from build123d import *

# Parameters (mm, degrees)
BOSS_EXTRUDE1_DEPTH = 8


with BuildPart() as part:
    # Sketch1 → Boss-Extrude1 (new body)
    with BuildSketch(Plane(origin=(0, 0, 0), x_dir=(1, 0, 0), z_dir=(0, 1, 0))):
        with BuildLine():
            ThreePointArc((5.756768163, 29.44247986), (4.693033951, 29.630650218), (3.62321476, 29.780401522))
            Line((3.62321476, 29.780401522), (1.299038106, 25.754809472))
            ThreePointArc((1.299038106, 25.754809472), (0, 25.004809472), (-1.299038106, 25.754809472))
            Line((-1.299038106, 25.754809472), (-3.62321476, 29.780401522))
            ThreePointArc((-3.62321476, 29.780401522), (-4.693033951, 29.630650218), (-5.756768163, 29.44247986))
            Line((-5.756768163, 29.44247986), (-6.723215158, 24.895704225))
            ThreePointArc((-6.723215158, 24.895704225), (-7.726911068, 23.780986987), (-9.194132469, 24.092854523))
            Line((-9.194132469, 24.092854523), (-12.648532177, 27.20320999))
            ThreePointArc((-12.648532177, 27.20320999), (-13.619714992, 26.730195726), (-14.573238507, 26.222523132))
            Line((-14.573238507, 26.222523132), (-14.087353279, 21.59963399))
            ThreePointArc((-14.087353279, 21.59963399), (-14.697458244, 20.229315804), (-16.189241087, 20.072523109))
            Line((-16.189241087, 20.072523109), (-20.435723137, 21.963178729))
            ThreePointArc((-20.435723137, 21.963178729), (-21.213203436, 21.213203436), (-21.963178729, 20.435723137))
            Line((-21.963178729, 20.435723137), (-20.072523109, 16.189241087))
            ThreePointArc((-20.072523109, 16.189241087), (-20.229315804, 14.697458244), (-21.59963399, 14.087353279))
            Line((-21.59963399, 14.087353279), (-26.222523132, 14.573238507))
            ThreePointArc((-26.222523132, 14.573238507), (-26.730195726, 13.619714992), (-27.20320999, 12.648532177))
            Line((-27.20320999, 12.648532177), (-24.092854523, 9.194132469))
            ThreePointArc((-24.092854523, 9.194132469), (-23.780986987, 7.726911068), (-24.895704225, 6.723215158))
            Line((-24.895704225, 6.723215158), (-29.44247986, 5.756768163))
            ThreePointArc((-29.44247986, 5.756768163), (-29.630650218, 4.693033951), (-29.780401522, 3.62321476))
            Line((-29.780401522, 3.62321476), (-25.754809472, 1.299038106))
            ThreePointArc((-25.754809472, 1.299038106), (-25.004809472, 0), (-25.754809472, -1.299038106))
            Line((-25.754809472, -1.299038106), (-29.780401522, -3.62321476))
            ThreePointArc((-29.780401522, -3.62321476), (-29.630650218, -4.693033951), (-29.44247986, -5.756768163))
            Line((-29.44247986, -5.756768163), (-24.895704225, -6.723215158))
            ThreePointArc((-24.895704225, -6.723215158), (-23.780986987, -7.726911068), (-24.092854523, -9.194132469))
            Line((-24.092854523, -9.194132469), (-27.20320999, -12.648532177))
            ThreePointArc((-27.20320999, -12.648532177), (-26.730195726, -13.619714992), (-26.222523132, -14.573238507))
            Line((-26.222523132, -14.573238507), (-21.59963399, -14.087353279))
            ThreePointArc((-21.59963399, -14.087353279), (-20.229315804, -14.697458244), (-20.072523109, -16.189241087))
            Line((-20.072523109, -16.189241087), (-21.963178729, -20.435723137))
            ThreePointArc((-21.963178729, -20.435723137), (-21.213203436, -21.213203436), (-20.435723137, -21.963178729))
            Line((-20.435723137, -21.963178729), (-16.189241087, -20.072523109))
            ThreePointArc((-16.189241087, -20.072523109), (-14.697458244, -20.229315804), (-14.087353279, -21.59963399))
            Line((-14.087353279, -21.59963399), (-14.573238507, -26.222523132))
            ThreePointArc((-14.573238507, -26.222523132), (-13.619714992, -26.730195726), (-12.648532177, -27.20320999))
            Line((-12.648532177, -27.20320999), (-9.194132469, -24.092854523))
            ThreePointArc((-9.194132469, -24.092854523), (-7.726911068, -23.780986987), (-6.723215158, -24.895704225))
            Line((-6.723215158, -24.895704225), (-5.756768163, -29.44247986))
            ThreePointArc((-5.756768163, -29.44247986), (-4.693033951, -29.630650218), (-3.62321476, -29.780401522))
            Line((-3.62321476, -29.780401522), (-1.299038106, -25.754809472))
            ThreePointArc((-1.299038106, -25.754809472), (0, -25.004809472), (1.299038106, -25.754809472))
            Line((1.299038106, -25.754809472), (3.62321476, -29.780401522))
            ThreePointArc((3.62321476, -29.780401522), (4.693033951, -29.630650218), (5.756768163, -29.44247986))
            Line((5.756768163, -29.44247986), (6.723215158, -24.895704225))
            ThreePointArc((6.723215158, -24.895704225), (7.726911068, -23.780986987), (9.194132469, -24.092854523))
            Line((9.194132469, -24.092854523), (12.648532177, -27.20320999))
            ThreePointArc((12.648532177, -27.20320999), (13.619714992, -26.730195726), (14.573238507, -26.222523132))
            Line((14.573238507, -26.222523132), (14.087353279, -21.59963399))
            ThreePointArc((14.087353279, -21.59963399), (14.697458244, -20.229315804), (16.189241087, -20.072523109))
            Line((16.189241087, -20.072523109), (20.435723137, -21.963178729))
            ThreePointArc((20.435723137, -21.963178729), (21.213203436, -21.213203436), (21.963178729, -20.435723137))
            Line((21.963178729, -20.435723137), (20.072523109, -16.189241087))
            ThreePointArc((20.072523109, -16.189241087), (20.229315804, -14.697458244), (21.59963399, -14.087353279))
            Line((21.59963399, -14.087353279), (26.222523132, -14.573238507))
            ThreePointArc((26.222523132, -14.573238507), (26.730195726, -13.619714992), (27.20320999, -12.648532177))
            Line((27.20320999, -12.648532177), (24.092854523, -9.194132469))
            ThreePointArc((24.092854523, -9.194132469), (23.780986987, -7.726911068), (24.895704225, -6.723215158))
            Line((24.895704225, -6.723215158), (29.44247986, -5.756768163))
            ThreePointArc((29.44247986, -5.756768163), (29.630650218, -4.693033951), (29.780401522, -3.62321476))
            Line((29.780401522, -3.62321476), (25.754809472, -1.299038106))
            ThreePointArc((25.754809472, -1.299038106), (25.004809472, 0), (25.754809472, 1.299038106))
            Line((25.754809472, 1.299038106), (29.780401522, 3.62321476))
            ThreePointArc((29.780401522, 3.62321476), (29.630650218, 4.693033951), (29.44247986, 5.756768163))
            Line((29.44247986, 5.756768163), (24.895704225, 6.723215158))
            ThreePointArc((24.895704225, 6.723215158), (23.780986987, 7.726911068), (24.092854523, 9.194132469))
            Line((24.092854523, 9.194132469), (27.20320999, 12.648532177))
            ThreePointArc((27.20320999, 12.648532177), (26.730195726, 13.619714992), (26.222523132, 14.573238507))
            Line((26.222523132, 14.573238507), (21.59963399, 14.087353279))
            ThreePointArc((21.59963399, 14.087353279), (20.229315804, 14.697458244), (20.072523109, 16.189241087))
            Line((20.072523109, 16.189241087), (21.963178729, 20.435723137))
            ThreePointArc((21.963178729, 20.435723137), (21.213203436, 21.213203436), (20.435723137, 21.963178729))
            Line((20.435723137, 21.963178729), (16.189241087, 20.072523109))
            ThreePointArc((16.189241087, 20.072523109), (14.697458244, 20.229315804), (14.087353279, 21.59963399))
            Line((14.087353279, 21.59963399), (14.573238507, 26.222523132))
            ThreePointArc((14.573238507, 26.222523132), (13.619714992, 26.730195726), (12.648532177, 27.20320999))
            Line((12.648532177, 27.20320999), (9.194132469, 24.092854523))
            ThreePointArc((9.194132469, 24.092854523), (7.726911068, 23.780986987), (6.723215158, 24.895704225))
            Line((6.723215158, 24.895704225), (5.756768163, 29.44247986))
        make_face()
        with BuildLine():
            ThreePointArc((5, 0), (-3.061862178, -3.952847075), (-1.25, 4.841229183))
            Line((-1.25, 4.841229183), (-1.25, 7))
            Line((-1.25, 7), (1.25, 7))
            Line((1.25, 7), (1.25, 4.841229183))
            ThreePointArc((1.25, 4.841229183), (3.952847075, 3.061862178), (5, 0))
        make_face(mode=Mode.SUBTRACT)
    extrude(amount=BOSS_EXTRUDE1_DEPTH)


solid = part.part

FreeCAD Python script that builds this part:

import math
import FreeCAD as App
import Part
import Sketcher
Q = App.Units.Quantity

doc = App.newDocument("Part")
body = doc.addObject("PartDesign::Body", "Body")

# Sketch on XZ plane
sketch1 = doc.addObject("Sketcher::SketchObject", "Sketch")
body.addObject(sketch1)
sketch1.AttachmentSupport = (doc.XZ_Plane, [""])
sketch1.MapMode = "FlatFace"
sketch1.addGeometry(Part.ArcOfCircle(Part.Circle(App.Vector(0, 0, 0), App.Vector(0, 0, 1), 30), math.radians(-83.063236), math.radians(-78.936764)), False)
sketch1.addGeometry(Part.LineSegment(App.Vector(3.623215, -29.780402, 0), App.Vector(1.299038, -25.754809, 0)), False)
sketch1.addGeometry(Part.ArcOfCircle(Part.Circle(App.Vector(0, -26.504809, 0), App.Vector(0, 0, 1), 1.5), math.radians(30), math.radians(150)), False)
sketch1.addGeometry(Part.LineSegment(App.Vector(-1.299038, -25.754809, 0), App.Vector(-3.623215, -29.780402, 0)), False)
sketch1.addGeometry(Part.ArcOfCircle(Part.Circle(App.Vector(0, 0, 0), App.Vector(0, 0, 1), 30), math.radians(-101.063236), math.radians(-96.936764)), False)
sketch1.addGeometry(Part.LineSegment(App.Vector(-5.756768, -29.44248, 0), App.Vector(-6.723215, -24.895704, 0)), False)
sketch1.addGeometry(Part.ArcOfCircle(Part.Circle(App.Vector(-8.190437, -25.207572, 0), App.Vector(0, 0, 1), 1.5), math.radians(12), math.radians(132)), False)
sketch1.addGeometry(Part.LineSegment(App.Vector(-9.194132, -24.092855, 0), App.Vector(-12.648532, -27.20321, 0)), False)
sketch1.addGeometry(Part.ArcOfCircle(Part.Circle(App.Vector(0, -0.000001, 0), App.Vector(0, 0, 1), 29.999999), math.radians(-119.063236), math.radians(-114.936764)), False)
sketch1.addGeometry(Part.LineSegment(App.Vector(-14.573239, -26.222523, 0), App.Vector(-14.087353, -21.599634, 0)), False)
sketch1.addGeometry(Part.ArcOfCircle(Part.Circle(App.Vector(-15.579136, -21.442841, 0), App.Vector(0, 0, 1), 1.5), math.radians(-6), math.radians(114)), False)
sketch1.addGeometry(Part.LineSegment(App.Vector(-16.189241, -20.072523, 0), App.Vector(-20.435723, -21.963179, 0)), False)
sketch1.addGeometry(Part.ArcOfCircle(Part.Circle(App.Vector(0, 0, 0), App.Vector(0, 0, 1), 29.999999), math.radians(-137.063236), math.radians(-132.936764)), False)
sketch1.addGeometry(Part.LineSegment(App.Vector(-21.963179, -20.435723, 0), App.Vector(-20.072523, -16.189241, 0)), False)
sketch1.addGeometry(Part.ArcOfCircle(Part.Circle(App.Vector(-21.442841, -15.579136, 0), App.Vector(0, 0, 1), 1.5), math.radians(-24), math.radians(96)), False)
sketch1.addGeometry(Part.LineSegment(App.Vector(-21.599634, -14.087353, 0), App.Vector(-26.222523, -14.573239, 0)), False)
sketch1.addGeometry(Part.ArcOfCircle(Part.Circle(App.Vector(-0.000001, 0, 0), App.Vector(0, 0, 1), 29.999999), math.radians(-155.063236), math.radians(-150.936764)), False)
sketch1.addGeometry(Part.LineSegment(App.Vector(-27.20321, -12.648532, 0), App.Vector(-24.092855, -9.194132, 0)), False)
sketch1.addGeometry(Part.ArcOfCircle(Part.Circle(App.Vector(-25.207572, -8.190437, 0), App.Vector(0, 0, 1), 1.5), math.radians(-42), math.radians(78)), False)
sketch1.addGeometry(Part.LineSegment(App.Vector(-24.895704, -6.723215, 0), App.Vector(-29.44248, -5.756768, 0)), False)
sketch1.addGeometry(Part.ArcOfCircle(Part.Circle(App.Vector(0, 0, 0), App.Vector(0, 0, 1), 30), math.radians(-173.063236), math.radians(-168.936764)), False)
sketch1.addGeometry(Part.LineSegment(App.Vector(-29.780402, -3.623215, 0), App.Vector(-25.754809, -1.299038, 0)), False)
sketch1.addGeometry(Part.ArcOfCircle(Part.Circle(App.Vector(-26.504809, 0, 0), App.Vector(0, 0, 1), 1.5), math.radians(-60), math.radians(60)), False)
sketch1.addGeometry(Part.LineSegment(App.Vector(-25.754809, 1.299038, 0), App.Vector(-29.780402, 3.623215, 0)), False)
sketch1.addGeometry(Part.ArcOfCircle(Part.Circle(App.Vector(0, 0, 0), App.Vector(0, 0, 1), 30), math.radians(168.936764), math.radians(173.063236)), False)
sketch1.addGeometry(Part.LineSegment(App.Vector(-29.44248, 5.756768, 0), App.Vector(-24.895704, 6.723215, 0)), False)
sketch1.addGeometry(Part.ArcOfCircle(Part.Circle(App.Vector(-25.207572, 8.190437, 0), App.Vector(0, 0, 1), 1.5), math.radians(-78), math.radians(42)), False)
sketch1.addGeometry(Part.LineSegment(App.Vector(-24.092855, 9.194132, 0), App.Vector(-27.20321, 12.648532, 0)), False)
sketch1.addGeometry(Part.ArcOfCircle(Part.Circle(App.Vector(-0.000001, 0, 0), App.Vector(0, 0, 1), 29.999999), math.radians(150.936764), math.radians(155.063236)), False)
sketch1.addGeometry(Part.LineSegment(App.Vector(-26.222523, 14.573239, 0), App.Vector(-21.599634, 14.087353, 0)), False)
sketch1.addGeometry(Part.ArcOfCircle(Part.Circle(App.Vector(-21.442841, 15.579136, 0), App.Vector(0, 0, 1), 1.5), math.radians(-96), math.radians(24)), False)
sketch1.addGeometry(Part.LineSegment(App.Vector(-20.072523, 16.189241, 0), App.Vector(-21.963179, 20.435723, 0)), False)
sketch1.addGeometry(Part.ArcOfCircle(Part.Circle(App.Vector(0, 0, 0), App.Vector(0, 0, 1), 29.999999), math.radians(132.936764), math.radians(137.063236)), False)
sketch1.addGeometry(Part.LineSegment(App.Vector(-20.435723, 21.963179, 0), App.Vector(-16.189241, 20.072523, 0)), False)
sketch1.addGeometry(Part.ArcOfCircle(Part.Circle(App.Vector(-15.579136, 21.442841, 0), App.Vector(0, 0, 1), 1.5), math.radians(-114), math.radians(6)), False)
sketch1.addGeometry(Part.LineSegment(App.Vector(-14.087353, 21.599634, 0), App.Vector(-14.573239, 26.222523, 0)), False)
sketch1.addGeometry(Part.ArcOfCircle(Part.Circle(App.Vector(0, 0.000001, 0), App.Vector(0, 0, 1), 29.999999), math.radians(114.936764), math.radians(119.063236)), False)
sketch1.addGeometry(Part.LineSegment(App.Vector(-12.648532, 27.20321, 0), App.Vector(-9.194132, 24.092855, 0)), False)
sketch1.addGeometry(Part.ArcOfCircle(Part.Circle(App.Vector(-8.190437, 25.207572, 0), App.Vector(0, 0, 1), 1.5), math.radians(-132), math.radians(-12)), False)
sketch1.addGeometry(Part.LineSegment(App.Vector(-6.723215, 24.895704, 0), App.Vector(-5.756768, 29.44248, 0)), False)
sketch1.addGeometry(Part.ArcOfCircle(Part.Circle(App.Vector(0, 0, 0), App.Vector(0, 0, 1), 30), math.radians(96.936764), math.radians(101.063236)), False)
sketch1.addGeometry(Part.LineSegment(App.Vector(-3.623215, 29.780402, 0), App.Vector(-1.299038, 25.754809, 0)), False)
sketch1.addGeometry(Part.ArcOfCircle(Part.Circle(App.Vector(0, 26.504809, 0), App.Vector(0, 0, 1), 1.5), math.radians(-150), math.radians(-30)), False)
sketch1.addGeometry(Part.LineSegment(App.Vector(1.299038, 25.754809, 0), App.Vector(3.623215, 29.780402, 0)), False)
sketch1.addGeometry(Part.ArcOfCircle(Part.Circle(App.Vector(0, 0, 0), App.Vector(0, 0, 1), 30), math.radians(78.936764), math.radians(83.063236)), False)
sketch1.addGeometry(Part.LineSegment(App.Vector(5.756768, 29.44248, 0), App.Vector(6.723215, 24.895704, 0)), False)
sketch1.addGeometry(Part.ArcOfCircle(Part.Circle(App.Vector(8.190437, 25.207572, 0), App.Vector(0, 0, 1), 1.5), math.radians(-168), math.radians(-48)), False)
sketch1.addGeometry(Part.LineSegment(App.Vector(9.194132, 24.092855, 0), App.Vector(12.648532, 27.20321, 0)), False)
sketch1.addGeometry(Part.ArcOfCircle(Part.Circle(App.Vector(0, 0.000001, 0), App.Vector(0, 0, 1), 29.999999), math.radians(60.936764), math.radians(65.063236)), False)
sketch1.addGeometry(Part.LineSegment(App.Vector(14.573239, 26.222523, 0), App.Vector(14.087353, 21.599634, 0)), False)
sketch1.addGeometry(Part.ArcOfCircle(Part.Circle(App.Vector(15.579136, 21.442841, 0), App.Vector(0, 0, 1), 1.5), math.radians(174), math.radians(294)), False)
sketch1.addGeometry(Part.LineSegment(App.Vector(16.189241, 20.072523, 0), App.Vector(20.435723, 21.963179, 0)), False)
sketch1.addGeometry(Part.ArcOfCircle(Part.Circle(App.Vector(0, 0, 0), App.Vector(0, 0, 1), 29.999999), math.radians(42.936764), math.radians(47.063236)), False)
sketch1.addGeometry(Part.LineSegment(App.Vector(21.963179, 20.435723, 0), App.Vector(20.072523, 16.189241, 0)), False)
sketch1.addGeometry(Part.ArcOfCircle(Part.Circle(App.Vector(21.442841, 15.579136, 0), App.Vector(0, 0, 1), 1.5), math.radians(156), math.radians(276)), False)
sketch1.addGeometry(Part.LineSegment(App.Vector(21.599634, 14.087353, 0), App.Vector(26.222523, 14.573239, 0)), False)
sketch1.addGeometry(Part.ArcOfCircle(Part.Circle(App.Vector(0.000001, 0, 0), App.Vector(0, 0, 1), 29.999999), math.radians(24.936764), math.radians(29.063236)), False)
sketch1.addGeometry(Part.LineSegment(App.Vector(27.20321, 12.648532, 0), App.Vector(24.092855, 9.194132, 0)), False)
sketch1.addGeometry(Part.ArcOfCircle(Part.Circle(App.Vector(25.207572, 8.190437, 0), App.Vector(0, 0, 1), 1.5), math.radians(138), math.radians(258)), False)
sketch1.addGeometry(Part.LineSegment(App.Vector(24.895704, 6.723215, 0), App.Vector(29.44248, 5.756768, 0)), False)
sketch1.addGeometry(Part.ArcOfCircle(Part.Circle(App.Vector(0, 0, 0), App.Vector(0, 0, 1), 30), math.radians(6.936764), math.radians(11.063236)), False)
sketch1.addGeometry(Part.LineSegment(App.Vector(29.780402, 3.623215, 0), App.Vector(25.754809, 1.299038, 0)), False)
sketch1.addGeometry(Part.ArcOfCircle(Part.Circle(App.Vector(26.504809, 0, 0), App.Vector(0, 0, 1), 1.5), math.radians(120), math.radians(240)), False)
sketch1.addGeometry(Part.LineSegment(App.Vector(25.754809, -1.299038, 0), App.Vector(29.780402, -3.623215, 0)), False)
sketch1.addGeometry(Part.ArcOfCircle(Part.Circle(App.Vector(0, 0, 0), App.Vector(0, 0, 1), 30), math.radians(-11.063236), math.radians(-6.936764)), False)
sketch1.addGeometry(Part.LineSegment(App.Vector(29.44248, -5.756768, 0), App.Vector(24.895704, -6.723215, 0)), False)
sketch1.addGeometry(Part.ArcOfCircle(Part.Circle(App.Vector(25.207572, -8.190437, 0), App.Vector(0, 0, 1), 1.5), math.radians(102), math.radians(222)), False)
sketch1.addGeometry(Part.LineSegment(App.Vector(24.092855, -9.194132, 0), App.Vector(27.20321, -12.648532, 0)), False)
sketch1.addGeometry(Part.ArcOfCircle(Part.Circle(App.Vector(0.000001, 0, 0), App.Vector(0, 0, 1), 29.999999), math.radians(-29.063236), math.radians(-24.936764)), False)
sketch1.addGeometry(Part.LineSegment(App.Vector(26.222523, -14.573239, 0), App.Vector(21.599634, -14.087353, 0)), False)
sketch1.addGeometry(Part.ArcOfCircle(Part.Circle(App.Vector(21.442841, -15.579136, 0), App.Vector(0, 0, 1), 1.5), math.radians(84), math.radians(204)), False)
sketch1.addGeometry(Part.LineSegment(App.Vector(20.072523, -16.189241, 0), App.Vector(21.963179, -20.435723, 0)), False)
sketch1.addGeometry(Part.ArcOfCircle(Part.Circle(App.Vector(0, 0, 0), App.Vector(0, 0, 1), 29.999999), math.radians(-47.063236), math.radians(-42.936764)), False)
sketch1.addGeometry(Part.LineSegment(App.Vector(20.435723, -21.963179, 0), App.Vector(16.189241, -20.072523, 0)), False)
sketch1.addGeometry(Part.ArcOfCircle(Part.Circle(App.Vector(15.579136, -21.442841, 0), App.Vector(0, 0, 1), 1.5), math.radians(66), math.radians(186)), False)
sketch1.addGeometry(Part.LineSegment(App.Vector(14.087353, -21.599634, 0), App.Vector(14.573239, -26.222523, 0)), False)
sketch1.addGeometry(Part.ArcOfCircle(Part.Circle(App.Vector(0, -0.000001, 0), App.Vector(0, 0, 1), 29.999999), math.radians(-65.063236), math.radians(-60.936764)), False)
sketch1.addGeometry(Part.LineSegment(App.Vector(12.648532, -27.20321, 0), App.Vector(9.194132, -24.092855, 0)), False)
sketch1.addGeometry(Part.ArcOfCircle(Part.Circle(App.Vector(8.190437, -25.207572, 0), App.Vector(0, 0, 1), 1.5), math.radians(48), math.radians(168)), False)
sketch1.addGeometry(Part.LineSegment(App.Vector(6.723215, -24.895704, 0), App.Vector(5.756768, -29.44248, 0)), False)
sketch1.addGeometry(Part.ArcOfCircle(Part.Circle(App.Vector(0, 0, 0), App.Vector(0, 0, 1), 5), math.radians(-75.522488), math.radians(0)), False)
sketch1.addGeometry(Part.ArcOfCircle(Part.Circle(App.Vector(0, 0, 0), App.Vector(0, 0, 1), 5), math.radians(0), math.radians(255.522488)), False)
sketch1.addGeometry(Part.LineSegment(App.Vector(-1.25, -4.841229, 0), App.Vector(-1.25, -7, 0)), False)
sketch1.addGeometry(Part.LineSegment(App.Vector(-1.25, -7, 0), App.Vector(1.25, -7, 0)), False)
sketch1.addGeometry(Part.LineSegment(App.Vector(1.25, -7, 0), App.Vector(1.25, -4.841229, 0)), False)
sketch1.addConstraint(Sketcher.Constraint("Coincident", 0, 1, 1, 1))
sketch1.addConstraint(Sketcher.Constraint("Tangent", 1, 2, 2, 1))
sketch1.addConstraint(Sketcher.Constraint("Tangent", 2, 2, 3, 1))
sketch1.addConstraint(Sketcher.Constraint("Coincident", 3, 2, 4, 2))
sketch1.addConstraint(Sketcher.Constraint("Coincident", 4, 1, 5, 1))
sketch1.addConstraint(Sketcher.Constraint("Tangent", 5, 2, 6, 1))
sketch1.addConstraint(Sketcher.Constraint("Tangent", 6, 2, 7, 1))
sketch1.addConstraint(Sketcher.Constraint("Coincident", 7, 2, 8, 2))
sketch1.addConstraint(Sketcher.Constraint("Coincident", 8, 1, 9, 1))
sketch1.addConstraint(Sketcher.Constraint("Tangent", 9, 2, 10, 1))
sketch1.addConstraint(Sketcher.Constraint("Tangent", 10, 2, 11, 1))
sketch1.addConstraint(Sketcher.Constraint("Coincident", 11, 2, 12, 2))
sketch1.addConstraint(Sketcher.Constraint("Coincident", 12, 1, 13, 1))
sketch1.addConstraint(Sketcher.Constraint("Tangent", 13, 2, 14, 1))
sketch1.addConstraint(Sketcher.Constraint("Tangent", 14, 2, 15, 1))
sketch1.addConstraint(Sketcher.Constraint("Coincident", 15, 2, 16, 2))
sketch1.addConstraint(Sketcher.Constraint("Coincident", 16, 1, 17, 1))
sketch1.addConstraint(Sketcher.Constraint("Tangent", 17, 2, 18, 1))
sketch1.addConstraint(Sketcher.Constraint("Tangent", 18, 2, 19, 1))
sketch1.addConstraint(Sketcher.Constraint("Coincident", 19, 2, 20, 2))
sketch1.addConstraint(Sketcher.Constraint("Coincident", 20, 1, 21, 1))
sketch1.addConstraint(Sketcher.Constraint("Tangent", 21, 2, 22, 1))
sketch1.addConstraint(Sketcher.Constraint("Tangent", 22, 2, 23, 1))
sketch1.addConstraint(Sketcher.Constraint("Coincident", 23, 2, 24, 2))
sketch1.addConstraint(Sketcher.Constraint("Coincident", 24, 1, 25, 1))
sketch1.addConstraint(Sketcher.Constraint("Tangent", 25, 2, 26, 1))
sketch1.addConstraint(Sketcher.Constraint("Tangent", 26, 2, 27, 1))
sketch1.addConstraint(Sketcher.Constraint("Coincident", 27, 2, 28, 2))
sketch1.addConstraint(Sketcher.Constraint("Coincident", 28, 1, 29, 1))
sketch1.addConstraint(Sketcher.Constraint("Tangent", 29, 2, 30, 1))
sketch1.addConstraint(Sketcher.Constraint("Tangent", 30, 2, 31, 1))
sketch1.addConstraint(Sketcher.Constraint("Coincident", 31, 2, 32, 2))
sketch1.addConstraint(Sketcher.Constraint("Coincident", 32, 1, 33, 1))
sketch1.addConstraint(Sketcher.Constraint("Tangent", 33, 2, 34, 1))
sketch1.addConstraint(Sketcher.Constraint("Tangent", 34, 2, 35, 1))
sketch1.addConstraint(Sketcher.Constraint("Coincident", 35, 2, 36, 2))
sketch1.addConstraint(Sketcher.Constraint("Coincident", 36, 1, 37, 1))
sketch1.addConstraint(Sketcher.Constraint("Tangent", 37, 2, 38, 1))
sketch1.addConstraint(Sketcher.Constraint("Tangent", 38, 2, 39, 1))
sketch1.addConstraint(Sketcher.Constraint("Coincident", 39, 2, 40, 2))
sketch1.addConstraint(Sketcher.Constraint("Coincident", 40, 1, 41, 1))
sketch1.addConstraint(Sketcher.Constraint("Tangent", 41, 2, 42, 1))
sketch1.addConstraint(Sketcher.Constraint("Tangent", 42, 2, 43, 1))
sketch1.addConstraint(Sketcher.Constraint("Coincident", 43, 2, 44, 2))
sketch1.addConstraint(Sketcher.Constraint("Coincident", 44, 1, 45, 1))
sketch1.addConstraint(Sketcher.Constraint("Tangent", 45, 2, 46, 1))
sketch1.addConstraint(Sketcher.Constraint("Tangent", 46, 2, 47, 1))
sketch1.addConstraint(Sketcher.Constraint("Coincident", 47, 2, 48, 2))
sketch1.addConstraint(Sketcher.Constraint("Coincident", 48, 1, 49, 1))
sketch1.addConstraint(Sketcher.Constraint("Tangent", 49, 2, 50, 1))
sketch1.addConstraint(Sketcher.Constraint("Tangent", 50, 2, 51, 1))
sketch1.addConstraint(Sketcher.Constraint("Coincident", 51, 2, 52, 2))
sketch1.addConstraint(Sketcher.Constraint("Coincident", 52, 1, 53, 1))
sketch1.addConstraint(Sketcher.Constraint("Tangent", 53, 2, 54, 1))
sketch1.addConstraint(Sketcher.Constraint("Tangent", 54, 2, 55, 1))
sketch1.addConstraint(Sketcher.Constraint("Coincident", 55, 2, 56, 2))
sketch1.addConstraint(Sketcher.Constraint("Coincident", 56, 1, 57, 1))
sketch1.addConstraint(Sketcher.Constraint("Tangent", 57, 2, 58, 1))
sketch1.addConstraint(Sketcher.Constraint("Tangent", 58, 2, 59, 1))
sketch1.addConstraint(Sketcher.Constraint("Coincident", 59, 2, 60, 2))
sketch1.addConstraint(Sketcher.Constraint("Coincident", 60, 1, 61, 1))
sketch1.addConstraint(Sketcher.Constraint("Tangent", 61, 2, 62, 1))
sketch1.addConstraint(Sketcher.Constraint("Tangent", 62, 2, 63, 1))
sketch1.addConstraint(Sketcher.Constraint("Coincident", 63, 2, 64, 2))
sketch1.addConstraint(Sketcher.Constraint("Coincident", 64, 1, 65, 1))
sketch1.addConstraint(Sketcher.Constraint("Tangent", 65, 2, 66, 1))
sketch1.addConstraint(Sketcher.Constraint("Tangent", 66, 2, 67, 1))
sketch1.addConstraint(Sketcher.Constraint("Coincident", 67, 2, 68, 2))
sketch1.addConstraint(Sketcher.Constraint("Coincident", 68, 1, 69, 1))
sketch1.addConstraint(Sketcher.Constraint("Tangent", 69, 2, 70, 1))
sketch1.addConstraint(Sketcher.Constraint("Tangent", 70, 2, 71, 1))
sketch1.addConstraint(Sketcher.Constraint("Coincident", 71, 2, 72, 2))
sketch1.addConstraint(Sketcher.Constraint("Coincident", 72, 1, 73, 1))
sketch1.addConstraint(Sketcher.Constraint("Tangent", 73, 2, 74, 1))
sketch1.addConstraint(Sketcher.Constraint("Tangent", 74, 2, 75, 1))
sketch1.addConstraint(Sketcher.Constraint("Coincident", 75, 2, 76, 2))
sketch1.addConstraint(Sketcher.Constraint("Coincident", 76, 1, 77, 1))
sketch1.addConstraint(Sketcher.Constraint("Tangent", 77, 2, 78, 1))
sketch1.addConstraint(Sketcher.Constraint("Tangent", 78, 2, 79, 1))
sketch1.addConstraint(Sketcher.Constraint("Coincident", 79, 2, 0, 2))
sketch1.addConstraint(Sketcher.Constraint("Tangent", 80, 2, 81, 1))
sketch1.addConstraint(Sketcher.Constraint("Coincident", 81, 2, 82, 1))
sketch1.addConstraint(Sketcher.Constraint("Coincident", 82, 2, 83, 1))
sketch1.addConstraint(Sketcher.Constraint("Coincident", 83, 2, 84, 1))
sketch1.addConstraint(Sketcher.Constraint("Coincident", 84, 2, 80, 1))
sketch1.addConstraint(Sketcher.Constraint("Vertical", 82))
sketch1.addConstraint(Sketcher.Constraint("Horizontal", 83))
sketch1.addConstraint(Sketcher.Constraint("Vertical", 84))
sketch1.addConstraint(Sketcher.Constraint("Coincident", 0, 3, -1, 1))
sketch1.addConstraint(Sketcher.Constraint("Coincident", 4, 3, -1, 1))
sketch1.addConstraint(Sketcher.Constraint("Coincident", 8, 3, -1, 1))
sketch1.addConstraint(Sketcher.Constraint("Coincident", 12, 3, -1, 1))
sketch1.addConstraint(Sketcher.Constraint("Coincident", 16, 3, -1, 1))
sketch1.addConstraint(Sketcher.Constraint("Coincident", 20, 3, -1, 1))
sketch1.addConstraint(Sketcher.Constraint("Coincident", 24, 3, -1, 1))
sketch1.addConstraint(Sketcher.Constraint("Coincident", 28, 3, -1, 1))
sketch1.addConstraint(Sketcher.Constraint("Coincident", 32, 3, -1, 1))
sketch1.addConstraint(Sketcher.Constraint("Coincident", 36, 3, -1, 1))
sketch1.addConstraint(Sketcher.Constraint("Coincident", 40, 3, -1, 1))
sketch1.addConstraint(Sketcher.Constraint("Coincident", 44, 3, -1, 1))
sketch1.addConstraint(Sketcher.Constraint("Coincident", 48, 3, -1, 1))
sketch1.addConstraint(Sketcher.Constraint("Coincident", 52, 3, -1, 1))
sketch1.addConstraint(Sketcher.Constraint("Coincident", 56, 3, -1, 1))
sketch1.addConstraint(Sketcher.Constraint("Coincident", 60, 3, -1, 1))
sketch1.addConstraint(Sketcher.Constraint("Coincident", 64, 3, -1, 1))
sketch1.addConstraint(Sketcher.Constraint("Coincident", 68, 3, -1, 1))
sketch1.addConstraint(Sketcher.Constraint("Coincident", 72, 3, -1, 1))
sketch1.addConstraint(Sketcher.Constraint("Coincident", 76, 3, -1, 1))
sketch1.addConstraint(Sketcher.Constraint("Coincident", 80, 3, -1, 1))
sketch1.addConstraint(Sketcher.Constraint("Equal", 0, 4))
sketch1.addConstraint(Sketcher.Constraint("Equal", 2, 6))
sketch1.addConstraint(Sketcher.Constraint("Equal", 4, 8))
sketch1.addConstraint(Sketcher.Constraint("Equal", 6, 10))
sketch1.addConstraint(Sketcher.Constraint("Equal", 8, 12))
sketch1.addConstraint(Sketcher.Constraint("Equal", 10, 14))
sketch1.addConstraint(Sketcher.Constraint("Equal", 12, 16))
sketch1.addConstraint(Sketcher.Constraint("Equal", 14, 18))
sketch1.addConstraint(Sketcher.Constraint("Equal", 16, 20))
sketch1.addConstraint(Sketcher.Constraint("Equal", 18, 22))
sketch1.addConstraint(Sketcher.Constraint("Equal", 20, 24))
sketch1.addConstraint(Sketcher.Constraint("Equal", 22, 26))
sketch1.addConstraint(Sketcher.Constraint("Equal", 24, 28))
sketch1.addConstraint(Sketcher.Constraint("Equal", 26, 30))
sketch1.addConstraint(Sketcher.Constraint("Equal", 28, 32))
sketch1.addConstraint(Sketcher.Constraint("Equal", 30, 34))
sketch1.addConstraint(Sketcher.Constraint("Equal", 32, 36))
sketch1.addConstraint(Sketcher.Constraint("Equal", 34, 38))
sketch1.addConstraint(Sketcher.Constraint("Equal", 36, 40))
sketch1.addConstraint(Sketcher.Constraint("Equal", 38, 42))
sketch1.addConstraint(Sketcher.Constraint("Equal", 40, 44))
sketch1.addConstraint(Sketcher.Constraint("Equal", 42, 46))
sketch1.addConstraint(Sketcher.Constraint("Equal", 44, 48))
sketch1.addConstraint(Sketcher.Constraint("Equal", 46, 50))
sketch1.addConstraint(Sketcher.Constraint("Equal", 48, 52))
sketch1.addConstraint(Sketcher.Constraint("Equal", 50, 54))
sketch1.addConstraint(Sketcher.Constraint("Equal", 52, 56))
sketch1.addConstraint(Sketcher.Constraint("Equal", 54, 58))
sketch1.addConstraint(Sketcher.Constraint("Equal", 56, 60))
sketch1.addConstraint(Sketcher.Constraint("Equal", 58, 62))
sketch1.addConstraint(Sketcher.Constraint("Equal", 60, 64))
sketch1.addConstraint(Sketcher.Constraint("Equal", 62, 66))
sketch1.addConstraint(Sketcher.Constraint("Equal", 64, 68))
sketch1.addConstraint(Sketcher.Constraint("Equal", 66, 70))
sketch1.addConstraint(Sketcher.Constraint("Equal", 68, 72))
sketch1.addConstraint(Sketcher.Constraint("Equal", 70, 74))
sketch1.addConstraint(Sketcher.Constraint("Equal", 72, 76))
sketch1.addConstraint(Sketcher.Constraint("Equal", 74, 78))
sketch1.addConstraint(Sketcher.Constraint("Equal", 80, 81))
sketch1.addConstraint(Sketcher.Constraint("Symmetric", 2, 3, 42, 3, -1, 1))
sketch1.addConstraint(Sketcher.Constraint("Symmetric", 6, 3, 46, 3, -1, 1))
sketch1.addConstraint(Sketcher.Constraint("Symmetric", 10, 3, 50, 3, -1, 1))
sketch1.addConstraint(Sketcher.Constraint("Symmetric", 14, 3, 54, 3, -1, 1))
sketch1.addConstraint(Sketcher.Constraint("Symmetric", 18, 3, 58, 3, -1, 1))
sketch1.addConstraint(Sketcher.Constraint("Symmetric", 22, 3, 62, 3, -1, 1))
sketch1.addConstraint(Sketcher.Constraint("Symmetric", 26, 3, 66, 3, -1, 1))
sketch1.addConstraint(Sketcher.Constraint("Symmetric", 30, 3, 70, 3, -1, 1))
sketch1.addConstraint(Sketcher.Constraint("Symmetric", 34, 3, 74, 3, -1, 1))
sketch1.addConstraint(Sketcher.Constraint("Symmetric", 38, 3, 78, 3, -1, 1))
sketch1.addConstraint(Sketcher.Constraint("Symmetric", 38, 3, 46, 3, -2))
sketch1.addConstraint(Sketcher.Constraint("Symmetric", 34, 3, 50, 3, -2))
sketch1.addConstraint(Sketcher.Constraint("Symmetric", 30, 3, 54, 3, -2))
sketch1.addConstraint(Sketcher.Constraint("Symmetric", 26, 3, 58, 3, -2))
sketch1.addConstraint(Sketcher.Constraint("Symmetric", 1, 2, 2, 2, -2))
sketch1.addConstraint(Sketcher.Constraint("Symmetric", 22, 2, 61, 2, -2))
sketch1.addConstraint(Sketcher.Constraint("PointOnObject", 80, 2, -1))
sketch1.addConstraint(Sketcher.Constraint("Perpendicular", 1, 21))
sketch1.addConstraint(Sketcher.Constraint("Perpendicular", 3, 23))
sketch1.addConstraint(Sketcher.Constraint("Perpendicular", 5, 25))
sketch1.addConstraint(Sketcher.Constraint("Perpendicular", 7, 27))
sketch1.addConstraint(Sketcher.Constraint("Perpendicular", 9, 29))
sketch1.addConstraint(Sketcher.Constraint("Perpendicular", 11, 31))
sketch1.addConstraint(Sketcher.Constraint("Perpendicular", 13, 33))
sketch1.addConstraint(Sketcher.Constraint("Perpendicular", 15, 35))
sketch1.addConstraint(Sketcher.Constraint("Perpendicular", 17, 37))
sketch1.addConstraint(Sketcher.Constraint("Perpendicular", 19, 39))
sketch1.addConstraint(Sketcher.Constraint("Perpendicular", 21, 41))
sketch1.addConstraint(Sketcher.Constraint("Perpendicular", 23, 43))
sketch1.addConstraint(Sketcher.Constraint("Perpendicular", 25, 45))
sketch1.addConstraint(Sketcher.Constraint("Perpendicular", 27, 47))
sketch1.addConstraint(Sketcher.Constraint("Perpendicular", 29, 49))
sketch1.addConstraint(Sketcher.Constraint("Perpendicular", 31, 51))
sketch1.addConstraint(Sketcher.Constraint("Perpendicular", 33, 53))
sketch1.addConstraint(Sketcher.Constraint("Perpendicular", 35, 55))
sketch1.addConstraint(Sketcher.Constraint("Perpendicular", 37, 57))
sketch1.addConstraint(Sketcher.Constraint("Perpendicular", 39, 59))
sketch1.addConstraint(Sketcher.Constraint("Perpendicular", 43, 63))
sketch1.addConstraint(Sketcher.Constraint("Perpendicular", 45, 65))
sketch1.addConstraint(Sketcher.Constraint("Perpendicular", 47, 67))
sketch1.addConstraint(Sketcher.Constraint("Perpendicular", 49, 69))
sketch1.addConstraint(Sketcher.Constraint("Perpendicular", 51, 71))
sketch1.addConstraint(Sketcher.Constraint("Perpendicular", 53, 73))
sketch1.addConstraint(Sketcher.Constraint("Perpendicular", 55, 75))
sketch1.addConstraint(Sketcher.Constraint("Perpendicular", 57, 77))
sketch1.addConstraint(Sketcher.Constraint("Perpendicular", 59, 79))
sketch1.addConstraint(Sketcher.Constraint("Horizontal", 39, 2, 44, 1))
sketch1.addConstraint(Sketcher.Constraint("Horizontal", 37, 2, 46, 2))
sketch1.addConstraint(Sketcher.Constraint("Horizontal", 35, 2, 48, 1))
sketch1.addConstraint(Sketcher.Constraint("Horizontal", 33, 2, 50, 2))
sketch1.addConstraint(Sketcher.Constraint("Horizontal", 81, 2, 84, 2))
sketch1.addConstraint(Sketcher.Constraint("Equal", 3, 5))
sketch1.addConstraint(Sketcher.Constraint("Equal", 5, 7))
sketch1.addConstraint(Sketcher.Constraint("Equal", 7, 9))
sketch1.addConstraint(Sketcher.Constraint("Equal", 9, 11))
sketch1.addConstraint(Sketcher.Constraint("Equal", 11, 13))
sketch1.addConstraint(Sketcher.Constraint("Equal", 13, 15))
sketch1.addConstraint(Sketcher.Constraint("Equal", 15, 17))
sketch1.addConstraint(Sketcher.Constraint("Equal", 17, 19))
sketch1.addConstraint(Sketcher.Constraint("Equal", 19, 21))
sketch1.addConstraint(Sketcher.Constraint("Radius", 0, Q("30 mm")))
sketch1.addConstraint(Sketcher.Constraint("Radius", 80, Q("5 mm")))
sketch1.addConstraint(Sketcher.Constraint("Radius", 2, Q("1.5 mm")))
sketch1.addConstraint(Sketcher.Constraint("Angle", 1, Q("120 deg")))
sketch1.addConstraint(Sketcher.Constraint("Angle", 5, Q("102 deg")))
sketch1.addConstraint(Sketcher.Constraint("Angle", 7, Q("-138 deg")))
sketch1.addConstraint(Sketcher.Constraint("Angle", 9, Q("84 deg")))
sketch1.addConstraint(Sketcher.Constraint("Angle", 11, Q("-156 deg")))
sketch1.addConstraint(Sketcher.Constraint("DistanceX", 83, 1, 83, 2, Q("2.5 mm")))
sketch1.addConstraint(Sketcher.Constraint("DistanceY", 82, 2, -1, 1, Q("7 mm")))
sketch1.addConstraint(Sketcher.Constraint("DistanceY", 3, 2, -1, 1, Q("29.780402 mm")))
pad1 = doc.addObject("PartDesign::Pad", "Pad")
body.addObject(pad1)
pad1.Profile = sketch1
pad1.Length = 8
pad1.Reversed = True

doc.recompute()
